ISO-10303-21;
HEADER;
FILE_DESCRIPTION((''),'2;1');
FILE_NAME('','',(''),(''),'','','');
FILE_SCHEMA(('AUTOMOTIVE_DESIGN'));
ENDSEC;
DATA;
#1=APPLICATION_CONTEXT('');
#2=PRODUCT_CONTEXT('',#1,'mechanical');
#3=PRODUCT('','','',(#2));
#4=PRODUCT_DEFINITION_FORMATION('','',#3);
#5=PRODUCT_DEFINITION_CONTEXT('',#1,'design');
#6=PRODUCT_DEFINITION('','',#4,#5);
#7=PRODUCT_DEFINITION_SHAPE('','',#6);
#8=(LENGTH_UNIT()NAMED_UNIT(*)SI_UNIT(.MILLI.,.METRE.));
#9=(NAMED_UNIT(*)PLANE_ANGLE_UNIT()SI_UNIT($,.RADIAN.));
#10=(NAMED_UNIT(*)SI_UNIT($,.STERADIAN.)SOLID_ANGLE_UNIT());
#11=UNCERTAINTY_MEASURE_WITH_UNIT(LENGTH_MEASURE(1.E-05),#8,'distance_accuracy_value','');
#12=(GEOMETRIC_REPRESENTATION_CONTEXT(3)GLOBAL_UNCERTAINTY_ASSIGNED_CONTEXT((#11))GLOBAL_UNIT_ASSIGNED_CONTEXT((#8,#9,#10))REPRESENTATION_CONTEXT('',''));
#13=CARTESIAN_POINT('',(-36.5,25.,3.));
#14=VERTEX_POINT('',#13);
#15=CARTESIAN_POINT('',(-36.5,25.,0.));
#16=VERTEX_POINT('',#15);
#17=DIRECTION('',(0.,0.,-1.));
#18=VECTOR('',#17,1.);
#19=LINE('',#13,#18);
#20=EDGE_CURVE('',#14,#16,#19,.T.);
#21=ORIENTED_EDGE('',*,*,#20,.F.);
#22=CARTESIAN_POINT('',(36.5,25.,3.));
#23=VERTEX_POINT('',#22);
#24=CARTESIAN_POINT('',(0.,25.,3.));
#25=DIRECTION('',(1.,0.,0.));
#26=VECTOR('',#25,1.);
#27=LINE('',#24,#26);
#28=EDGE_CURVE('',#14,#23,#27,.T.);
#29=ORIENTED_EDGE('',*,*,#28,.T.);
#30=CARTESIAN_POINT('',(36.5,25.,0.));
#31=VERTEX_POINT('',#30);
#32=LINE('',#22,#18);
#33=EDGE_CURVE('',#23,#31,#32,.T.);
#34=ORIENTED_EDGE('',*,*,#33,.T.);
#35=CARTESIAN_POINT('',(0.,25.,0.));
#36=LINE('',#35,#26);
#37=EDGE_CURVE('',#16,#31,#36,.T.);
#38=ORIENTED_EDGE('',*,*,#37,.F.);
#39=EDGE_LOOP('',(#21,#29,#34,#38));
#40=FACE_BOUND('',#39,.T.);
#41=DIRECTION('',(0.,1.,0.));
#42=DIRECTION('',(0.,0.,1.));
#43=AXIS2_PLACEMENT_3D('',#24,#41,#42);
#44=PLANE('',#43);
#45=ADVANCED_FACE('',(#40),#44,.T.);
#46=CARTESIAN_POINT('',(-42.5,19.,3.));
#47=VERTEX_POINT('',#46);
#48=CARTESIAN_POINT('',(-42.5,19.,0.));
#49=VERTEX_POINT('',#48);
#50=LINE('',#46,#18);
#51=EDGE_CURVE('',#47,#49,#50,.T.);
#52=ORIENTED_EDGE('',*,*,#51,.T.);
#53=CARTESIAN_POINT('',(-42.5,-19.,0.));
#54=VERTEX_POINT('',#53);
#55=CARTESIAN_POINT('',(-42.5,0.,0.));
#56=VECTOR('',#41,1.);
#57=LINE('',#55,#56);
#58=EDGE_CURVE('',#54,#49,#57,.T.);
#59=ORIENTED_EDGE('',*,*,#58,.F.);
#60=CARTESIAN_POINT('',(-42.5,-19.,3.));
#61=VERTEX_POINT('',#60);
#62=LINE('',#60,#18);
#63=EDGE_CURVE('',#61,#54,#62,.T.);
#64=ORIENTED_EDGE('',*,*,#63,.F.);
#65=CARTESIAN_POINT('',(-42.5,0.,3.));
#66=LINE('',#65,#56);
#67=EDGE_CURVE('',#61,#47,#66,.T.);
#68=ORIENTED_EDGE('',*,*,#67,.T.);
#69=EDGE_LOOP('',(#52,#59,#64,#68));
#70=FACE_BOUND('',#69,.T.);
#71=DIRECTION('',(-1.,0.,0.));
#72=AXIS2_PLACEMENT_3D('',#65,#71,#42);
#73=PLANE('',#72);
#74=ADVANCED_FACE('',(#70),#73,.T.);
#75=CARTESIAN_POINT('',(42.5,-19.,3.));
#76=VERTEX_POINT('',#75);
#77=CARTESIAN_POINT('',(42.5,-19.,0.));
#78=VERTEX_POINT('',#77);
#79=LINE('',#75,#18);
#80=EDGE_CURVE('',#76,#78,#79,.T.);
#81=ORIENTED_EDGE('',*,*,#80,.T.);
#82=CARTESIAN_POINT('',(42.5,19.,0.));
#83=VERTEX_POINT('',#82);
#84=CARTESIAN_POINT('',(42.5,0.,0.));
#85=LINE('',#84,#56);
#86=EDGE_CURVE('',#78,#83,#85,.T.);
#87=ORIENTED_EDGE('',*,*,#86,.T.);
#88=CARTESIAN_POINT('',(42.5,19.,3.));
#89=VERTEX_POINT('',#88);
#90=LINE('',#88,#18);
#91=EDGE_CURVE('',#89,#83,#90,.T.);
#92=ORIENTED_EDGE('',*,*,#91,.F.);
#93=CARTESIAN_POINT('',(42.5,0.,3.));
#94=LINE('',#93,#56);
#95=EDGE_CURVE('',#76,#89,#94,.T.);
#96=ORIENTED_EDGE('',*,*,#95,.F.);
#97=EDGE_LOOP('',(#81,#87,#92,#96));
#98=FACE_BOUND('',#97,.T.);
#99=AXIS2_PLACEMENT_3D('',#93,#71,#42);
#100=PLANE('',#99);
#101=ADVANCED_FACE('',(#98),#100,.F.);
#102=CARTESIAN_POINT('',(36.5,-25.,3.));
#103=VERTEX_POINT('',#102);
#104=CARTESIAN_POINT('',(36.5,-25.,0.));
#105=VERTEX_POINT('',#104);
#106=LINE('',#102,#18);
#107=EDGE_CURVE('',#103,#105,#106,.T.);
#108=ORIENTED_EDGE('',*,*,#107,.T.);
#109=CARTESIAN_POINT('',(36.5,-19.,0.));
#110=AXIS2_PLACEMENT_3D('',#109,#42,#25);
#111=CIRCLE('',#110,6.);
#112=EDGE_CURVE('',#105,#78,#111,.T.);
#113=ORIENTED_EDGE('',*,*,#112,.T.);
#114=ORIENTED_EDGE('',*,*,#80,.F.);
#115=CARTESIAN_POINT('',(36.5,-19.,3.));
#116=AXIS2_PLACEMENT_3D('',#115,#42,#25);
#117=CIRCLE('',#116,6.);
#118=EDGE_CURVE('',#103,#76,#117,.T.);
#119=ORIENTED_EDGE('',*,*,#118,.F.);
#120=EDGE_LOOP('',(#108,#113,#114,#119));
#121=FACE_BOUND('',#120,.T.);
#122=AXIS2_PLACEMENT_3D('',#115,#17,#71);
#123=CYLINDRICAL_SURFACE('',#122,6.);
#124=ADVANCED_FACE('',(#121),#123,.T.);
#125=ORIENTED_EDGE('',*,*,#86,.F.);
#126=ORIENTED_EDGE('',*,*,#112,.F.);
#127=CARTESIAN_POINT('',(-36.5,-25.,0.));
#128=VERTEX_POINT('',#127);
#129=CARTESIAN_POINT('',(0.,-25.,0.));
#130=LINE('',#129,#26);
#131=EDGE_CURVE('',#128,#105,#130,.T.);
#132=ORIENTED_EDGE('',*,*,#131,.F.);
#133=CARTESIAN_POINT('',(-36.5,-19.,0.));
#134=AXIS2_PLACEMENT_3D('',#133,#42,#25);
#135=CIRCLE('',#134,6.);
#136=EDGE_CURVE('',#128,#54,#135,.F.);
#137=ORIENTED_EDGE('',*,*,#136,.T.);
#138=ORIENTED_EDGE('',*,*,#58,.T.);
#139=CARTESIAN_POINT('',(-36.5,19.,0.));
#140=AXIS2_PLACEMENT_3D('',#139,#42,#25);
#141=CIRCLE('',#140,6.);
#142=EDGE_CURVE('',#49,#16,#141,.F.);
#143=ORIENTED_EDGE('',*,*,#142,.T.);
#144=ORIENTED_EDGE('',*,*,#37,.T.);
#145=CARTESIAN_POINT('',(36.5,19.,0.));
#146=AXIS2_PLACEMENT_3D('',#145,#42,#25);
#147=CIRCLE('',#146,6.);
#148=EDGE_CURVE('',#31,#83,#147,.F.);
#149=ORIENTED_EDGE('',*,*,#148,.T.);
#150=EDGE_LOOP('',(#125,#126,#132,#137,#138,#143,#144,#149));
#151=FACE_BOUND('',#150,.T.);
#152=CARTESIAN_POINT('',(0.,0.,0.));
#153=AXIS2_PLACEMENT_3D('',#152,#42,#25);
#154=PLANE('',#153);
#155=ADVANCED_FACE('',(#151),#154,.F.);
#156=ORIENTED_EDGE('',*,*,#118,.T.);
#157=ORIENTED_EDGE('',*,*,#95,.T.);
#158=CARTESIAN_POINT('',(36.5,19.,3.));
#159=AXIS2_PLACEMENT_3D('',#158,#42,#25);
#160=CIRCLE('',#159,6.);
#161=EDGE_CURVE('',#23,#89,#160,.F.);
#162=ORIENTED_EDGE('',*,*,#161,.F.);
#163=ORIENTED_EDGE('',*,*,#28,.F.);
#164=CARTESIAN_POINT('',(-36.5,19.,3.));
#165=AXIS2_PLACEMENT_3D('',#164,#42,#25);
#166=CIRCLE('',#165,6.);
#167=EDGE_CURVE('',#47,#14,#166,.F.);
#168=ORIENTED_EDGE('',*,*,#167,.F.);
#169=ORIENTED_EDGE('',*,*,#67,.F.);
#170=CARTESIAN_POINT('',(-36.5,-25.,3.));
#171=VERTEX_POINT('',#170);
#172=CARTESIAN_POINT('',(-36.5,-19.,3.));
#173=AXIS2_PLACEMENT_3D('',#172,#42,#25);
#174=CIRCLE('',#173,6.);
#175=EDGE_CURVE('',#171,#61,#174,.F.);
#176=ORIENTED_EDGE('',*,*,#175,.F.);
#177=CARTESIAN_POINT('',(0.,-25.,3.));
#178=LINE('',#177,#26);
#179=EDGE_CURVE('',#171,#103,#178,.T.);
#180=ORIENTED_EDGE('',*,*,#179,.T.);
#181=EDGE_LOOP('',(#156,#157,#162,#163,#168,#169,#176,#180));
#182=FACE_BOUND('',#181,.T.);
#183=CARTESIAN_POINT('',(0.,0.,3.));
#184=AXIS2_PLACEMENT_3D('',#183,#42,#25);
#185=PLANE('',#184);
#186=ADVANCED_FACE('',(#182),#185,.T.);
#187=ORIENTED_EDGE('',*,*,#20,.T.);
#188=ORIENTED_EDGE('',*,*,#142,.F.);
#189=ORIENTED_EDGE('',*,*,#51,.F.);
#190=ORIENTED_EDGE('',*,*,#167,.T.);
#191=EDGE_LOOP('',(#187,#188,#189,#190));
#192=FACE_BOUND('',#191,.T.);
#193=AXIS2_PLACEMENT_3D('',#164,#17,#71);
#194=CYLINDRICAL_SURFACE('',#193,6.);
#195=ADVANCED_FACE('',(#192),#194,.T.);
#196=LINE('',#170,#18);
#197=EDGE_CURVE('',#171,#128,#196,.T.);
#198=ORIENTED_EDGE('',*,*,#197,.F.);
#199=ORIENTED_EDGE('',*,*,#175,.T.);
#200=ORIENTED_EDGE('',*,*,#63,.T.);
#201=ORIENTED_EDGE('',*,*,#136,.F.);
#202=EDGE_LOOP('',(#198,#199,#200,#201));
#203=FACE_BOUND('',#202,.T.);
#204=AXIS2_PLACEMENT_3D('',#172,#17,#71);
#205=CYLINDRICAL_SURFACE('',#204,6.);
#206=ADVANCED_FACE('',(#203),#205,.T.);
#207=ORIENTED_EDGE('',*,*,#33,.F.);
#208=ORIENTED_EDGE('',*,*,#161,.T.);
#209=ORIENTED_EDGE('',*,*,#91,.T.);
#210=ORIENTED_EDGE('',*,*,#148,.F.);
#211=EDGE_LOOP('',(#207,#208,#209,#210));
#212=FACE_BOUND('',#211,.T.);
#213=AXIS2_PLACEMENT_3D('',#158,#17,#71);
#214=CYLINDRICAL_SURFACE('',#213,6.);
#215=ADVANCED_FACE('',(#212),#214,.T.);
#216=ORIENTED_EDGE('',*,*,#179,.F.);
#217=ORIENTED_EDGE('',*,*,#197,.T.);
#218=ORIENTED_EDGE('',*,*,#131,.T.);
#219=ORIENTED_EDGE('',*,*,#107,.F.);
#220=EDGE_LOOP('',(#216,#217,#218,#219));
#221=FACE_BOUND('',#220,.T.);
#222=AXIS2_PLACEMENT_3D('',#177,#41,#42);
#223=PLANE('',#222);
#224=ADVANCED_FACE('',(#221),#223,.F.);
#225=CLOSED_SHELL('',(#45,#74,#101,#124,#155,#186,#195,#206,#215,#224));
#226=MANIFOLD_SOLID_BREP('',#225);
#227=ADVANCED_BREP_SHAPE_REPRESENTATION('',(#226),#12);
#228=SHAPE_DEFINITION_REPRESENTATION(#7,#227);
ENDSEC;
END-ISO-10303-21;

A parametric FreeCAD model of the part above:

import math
import FreeCAD as App
import Part
import Sketcher
from FreeCAD import Vector

doc = App.newDocument("Part")
body = doc.addObject("PartDesign::Body", "Body")

sketch1 = doc.addObject("Sketcher::SketchObject", "Sketch")
body.addObject(sketch1)
sketch1.AttachmentSupport = (doc.XY_Plane, [""])
sketch1.MapMode = "FlatFace"
sketch1.addGeometry([
    Part.LineSegment(Vector(-36.5, -25, 0), Vector(36.5, -25, 0)),
    Part.ArcOfCircle(Part.Circle(Vector(36.5, -19, 0), Vector(0, 0, 1), 6), math.radians(-90), math.radians(0)),
    Part.LineSegment(Vector(42.5, -19, 0), Vector(42.5, 19, 0)),
    Part.ArcOfCircle(Part.Circle(Vector(36.5, 19, 0), Vector(0, 0, 1), 6), math.radians(0), math.radians(90)),
    Part.LineSegment(Vector(36.5, 25, 0), Vector(-36.5, 25, 0)),
    Part.ArcOfCircle(Part.Circle(Vector(-36.5, 19, 0), Vector(0, 0, 1), 6), math.radians(90), math.radians(180)),
    Part.LineSegment(Vector(-42.5, 19, 0), Vector(-42.5, -19, 0)),
    Part.ArcOfCircle(Part.Circle(Vector(-36.5, -19, 0), Vector(0, 0, 1), 6), math.radians(180), math.radians(270)),
], False)
sketch1.addConstraint([
    Sketcher.Constraint("Tangent", 0, 2, 1, 1),
    Sketcher.Constraint("Tangent", 1, 2, 2, 1),
    Sketcher.Constraint("Tangent", 2, 2, 3, 1),
    Sketcher.Constraint("Tangent", 3, 2, 4, 1),
    Sketcher.Constraint("Tangent", 4, 2, 5, 1),
    Sketcher.Constraint("Tangent", 5, 2, 6, 1),
    Sketcher.Constraint("Tangent", 6, 2, 7, 1),
    Sketcher.Constraint("Tangent", 7, 2, 0, 1),
    Sketcher.Constraint("Horizontal", 0),
    Sketcher.Constraint("Vertical", 2),
    Sketcher.Constraint("Horizontal", 4),
    Sketcher.Constraint("Vertical", 6),
    Sketcher.Constraint("Equal", 1, 3),
    Sketcher.Constraint("Equal", 3, 5),
    Sketcher.Constraint("Equal", 5, 7),
    Sketcher.Constraint("Symmetric", 1, 3, 5, 3, -1, 1),
    Sketcher.Constraint("Radius", 1, 6.0),
    Sketcher.Constraint("DistanceX", 0, 1, 0, 2, 73.0),
    Sketcher.Constraint("DistanceY", 2, 1, 2, 2, 38.0),
])
pad1 = doc.addObject("PartDesign::Pad", "Pad")
body.addObject(pad1)
pad1.Profile = sketch1
pad1.Length = 3

doc.recompute()
